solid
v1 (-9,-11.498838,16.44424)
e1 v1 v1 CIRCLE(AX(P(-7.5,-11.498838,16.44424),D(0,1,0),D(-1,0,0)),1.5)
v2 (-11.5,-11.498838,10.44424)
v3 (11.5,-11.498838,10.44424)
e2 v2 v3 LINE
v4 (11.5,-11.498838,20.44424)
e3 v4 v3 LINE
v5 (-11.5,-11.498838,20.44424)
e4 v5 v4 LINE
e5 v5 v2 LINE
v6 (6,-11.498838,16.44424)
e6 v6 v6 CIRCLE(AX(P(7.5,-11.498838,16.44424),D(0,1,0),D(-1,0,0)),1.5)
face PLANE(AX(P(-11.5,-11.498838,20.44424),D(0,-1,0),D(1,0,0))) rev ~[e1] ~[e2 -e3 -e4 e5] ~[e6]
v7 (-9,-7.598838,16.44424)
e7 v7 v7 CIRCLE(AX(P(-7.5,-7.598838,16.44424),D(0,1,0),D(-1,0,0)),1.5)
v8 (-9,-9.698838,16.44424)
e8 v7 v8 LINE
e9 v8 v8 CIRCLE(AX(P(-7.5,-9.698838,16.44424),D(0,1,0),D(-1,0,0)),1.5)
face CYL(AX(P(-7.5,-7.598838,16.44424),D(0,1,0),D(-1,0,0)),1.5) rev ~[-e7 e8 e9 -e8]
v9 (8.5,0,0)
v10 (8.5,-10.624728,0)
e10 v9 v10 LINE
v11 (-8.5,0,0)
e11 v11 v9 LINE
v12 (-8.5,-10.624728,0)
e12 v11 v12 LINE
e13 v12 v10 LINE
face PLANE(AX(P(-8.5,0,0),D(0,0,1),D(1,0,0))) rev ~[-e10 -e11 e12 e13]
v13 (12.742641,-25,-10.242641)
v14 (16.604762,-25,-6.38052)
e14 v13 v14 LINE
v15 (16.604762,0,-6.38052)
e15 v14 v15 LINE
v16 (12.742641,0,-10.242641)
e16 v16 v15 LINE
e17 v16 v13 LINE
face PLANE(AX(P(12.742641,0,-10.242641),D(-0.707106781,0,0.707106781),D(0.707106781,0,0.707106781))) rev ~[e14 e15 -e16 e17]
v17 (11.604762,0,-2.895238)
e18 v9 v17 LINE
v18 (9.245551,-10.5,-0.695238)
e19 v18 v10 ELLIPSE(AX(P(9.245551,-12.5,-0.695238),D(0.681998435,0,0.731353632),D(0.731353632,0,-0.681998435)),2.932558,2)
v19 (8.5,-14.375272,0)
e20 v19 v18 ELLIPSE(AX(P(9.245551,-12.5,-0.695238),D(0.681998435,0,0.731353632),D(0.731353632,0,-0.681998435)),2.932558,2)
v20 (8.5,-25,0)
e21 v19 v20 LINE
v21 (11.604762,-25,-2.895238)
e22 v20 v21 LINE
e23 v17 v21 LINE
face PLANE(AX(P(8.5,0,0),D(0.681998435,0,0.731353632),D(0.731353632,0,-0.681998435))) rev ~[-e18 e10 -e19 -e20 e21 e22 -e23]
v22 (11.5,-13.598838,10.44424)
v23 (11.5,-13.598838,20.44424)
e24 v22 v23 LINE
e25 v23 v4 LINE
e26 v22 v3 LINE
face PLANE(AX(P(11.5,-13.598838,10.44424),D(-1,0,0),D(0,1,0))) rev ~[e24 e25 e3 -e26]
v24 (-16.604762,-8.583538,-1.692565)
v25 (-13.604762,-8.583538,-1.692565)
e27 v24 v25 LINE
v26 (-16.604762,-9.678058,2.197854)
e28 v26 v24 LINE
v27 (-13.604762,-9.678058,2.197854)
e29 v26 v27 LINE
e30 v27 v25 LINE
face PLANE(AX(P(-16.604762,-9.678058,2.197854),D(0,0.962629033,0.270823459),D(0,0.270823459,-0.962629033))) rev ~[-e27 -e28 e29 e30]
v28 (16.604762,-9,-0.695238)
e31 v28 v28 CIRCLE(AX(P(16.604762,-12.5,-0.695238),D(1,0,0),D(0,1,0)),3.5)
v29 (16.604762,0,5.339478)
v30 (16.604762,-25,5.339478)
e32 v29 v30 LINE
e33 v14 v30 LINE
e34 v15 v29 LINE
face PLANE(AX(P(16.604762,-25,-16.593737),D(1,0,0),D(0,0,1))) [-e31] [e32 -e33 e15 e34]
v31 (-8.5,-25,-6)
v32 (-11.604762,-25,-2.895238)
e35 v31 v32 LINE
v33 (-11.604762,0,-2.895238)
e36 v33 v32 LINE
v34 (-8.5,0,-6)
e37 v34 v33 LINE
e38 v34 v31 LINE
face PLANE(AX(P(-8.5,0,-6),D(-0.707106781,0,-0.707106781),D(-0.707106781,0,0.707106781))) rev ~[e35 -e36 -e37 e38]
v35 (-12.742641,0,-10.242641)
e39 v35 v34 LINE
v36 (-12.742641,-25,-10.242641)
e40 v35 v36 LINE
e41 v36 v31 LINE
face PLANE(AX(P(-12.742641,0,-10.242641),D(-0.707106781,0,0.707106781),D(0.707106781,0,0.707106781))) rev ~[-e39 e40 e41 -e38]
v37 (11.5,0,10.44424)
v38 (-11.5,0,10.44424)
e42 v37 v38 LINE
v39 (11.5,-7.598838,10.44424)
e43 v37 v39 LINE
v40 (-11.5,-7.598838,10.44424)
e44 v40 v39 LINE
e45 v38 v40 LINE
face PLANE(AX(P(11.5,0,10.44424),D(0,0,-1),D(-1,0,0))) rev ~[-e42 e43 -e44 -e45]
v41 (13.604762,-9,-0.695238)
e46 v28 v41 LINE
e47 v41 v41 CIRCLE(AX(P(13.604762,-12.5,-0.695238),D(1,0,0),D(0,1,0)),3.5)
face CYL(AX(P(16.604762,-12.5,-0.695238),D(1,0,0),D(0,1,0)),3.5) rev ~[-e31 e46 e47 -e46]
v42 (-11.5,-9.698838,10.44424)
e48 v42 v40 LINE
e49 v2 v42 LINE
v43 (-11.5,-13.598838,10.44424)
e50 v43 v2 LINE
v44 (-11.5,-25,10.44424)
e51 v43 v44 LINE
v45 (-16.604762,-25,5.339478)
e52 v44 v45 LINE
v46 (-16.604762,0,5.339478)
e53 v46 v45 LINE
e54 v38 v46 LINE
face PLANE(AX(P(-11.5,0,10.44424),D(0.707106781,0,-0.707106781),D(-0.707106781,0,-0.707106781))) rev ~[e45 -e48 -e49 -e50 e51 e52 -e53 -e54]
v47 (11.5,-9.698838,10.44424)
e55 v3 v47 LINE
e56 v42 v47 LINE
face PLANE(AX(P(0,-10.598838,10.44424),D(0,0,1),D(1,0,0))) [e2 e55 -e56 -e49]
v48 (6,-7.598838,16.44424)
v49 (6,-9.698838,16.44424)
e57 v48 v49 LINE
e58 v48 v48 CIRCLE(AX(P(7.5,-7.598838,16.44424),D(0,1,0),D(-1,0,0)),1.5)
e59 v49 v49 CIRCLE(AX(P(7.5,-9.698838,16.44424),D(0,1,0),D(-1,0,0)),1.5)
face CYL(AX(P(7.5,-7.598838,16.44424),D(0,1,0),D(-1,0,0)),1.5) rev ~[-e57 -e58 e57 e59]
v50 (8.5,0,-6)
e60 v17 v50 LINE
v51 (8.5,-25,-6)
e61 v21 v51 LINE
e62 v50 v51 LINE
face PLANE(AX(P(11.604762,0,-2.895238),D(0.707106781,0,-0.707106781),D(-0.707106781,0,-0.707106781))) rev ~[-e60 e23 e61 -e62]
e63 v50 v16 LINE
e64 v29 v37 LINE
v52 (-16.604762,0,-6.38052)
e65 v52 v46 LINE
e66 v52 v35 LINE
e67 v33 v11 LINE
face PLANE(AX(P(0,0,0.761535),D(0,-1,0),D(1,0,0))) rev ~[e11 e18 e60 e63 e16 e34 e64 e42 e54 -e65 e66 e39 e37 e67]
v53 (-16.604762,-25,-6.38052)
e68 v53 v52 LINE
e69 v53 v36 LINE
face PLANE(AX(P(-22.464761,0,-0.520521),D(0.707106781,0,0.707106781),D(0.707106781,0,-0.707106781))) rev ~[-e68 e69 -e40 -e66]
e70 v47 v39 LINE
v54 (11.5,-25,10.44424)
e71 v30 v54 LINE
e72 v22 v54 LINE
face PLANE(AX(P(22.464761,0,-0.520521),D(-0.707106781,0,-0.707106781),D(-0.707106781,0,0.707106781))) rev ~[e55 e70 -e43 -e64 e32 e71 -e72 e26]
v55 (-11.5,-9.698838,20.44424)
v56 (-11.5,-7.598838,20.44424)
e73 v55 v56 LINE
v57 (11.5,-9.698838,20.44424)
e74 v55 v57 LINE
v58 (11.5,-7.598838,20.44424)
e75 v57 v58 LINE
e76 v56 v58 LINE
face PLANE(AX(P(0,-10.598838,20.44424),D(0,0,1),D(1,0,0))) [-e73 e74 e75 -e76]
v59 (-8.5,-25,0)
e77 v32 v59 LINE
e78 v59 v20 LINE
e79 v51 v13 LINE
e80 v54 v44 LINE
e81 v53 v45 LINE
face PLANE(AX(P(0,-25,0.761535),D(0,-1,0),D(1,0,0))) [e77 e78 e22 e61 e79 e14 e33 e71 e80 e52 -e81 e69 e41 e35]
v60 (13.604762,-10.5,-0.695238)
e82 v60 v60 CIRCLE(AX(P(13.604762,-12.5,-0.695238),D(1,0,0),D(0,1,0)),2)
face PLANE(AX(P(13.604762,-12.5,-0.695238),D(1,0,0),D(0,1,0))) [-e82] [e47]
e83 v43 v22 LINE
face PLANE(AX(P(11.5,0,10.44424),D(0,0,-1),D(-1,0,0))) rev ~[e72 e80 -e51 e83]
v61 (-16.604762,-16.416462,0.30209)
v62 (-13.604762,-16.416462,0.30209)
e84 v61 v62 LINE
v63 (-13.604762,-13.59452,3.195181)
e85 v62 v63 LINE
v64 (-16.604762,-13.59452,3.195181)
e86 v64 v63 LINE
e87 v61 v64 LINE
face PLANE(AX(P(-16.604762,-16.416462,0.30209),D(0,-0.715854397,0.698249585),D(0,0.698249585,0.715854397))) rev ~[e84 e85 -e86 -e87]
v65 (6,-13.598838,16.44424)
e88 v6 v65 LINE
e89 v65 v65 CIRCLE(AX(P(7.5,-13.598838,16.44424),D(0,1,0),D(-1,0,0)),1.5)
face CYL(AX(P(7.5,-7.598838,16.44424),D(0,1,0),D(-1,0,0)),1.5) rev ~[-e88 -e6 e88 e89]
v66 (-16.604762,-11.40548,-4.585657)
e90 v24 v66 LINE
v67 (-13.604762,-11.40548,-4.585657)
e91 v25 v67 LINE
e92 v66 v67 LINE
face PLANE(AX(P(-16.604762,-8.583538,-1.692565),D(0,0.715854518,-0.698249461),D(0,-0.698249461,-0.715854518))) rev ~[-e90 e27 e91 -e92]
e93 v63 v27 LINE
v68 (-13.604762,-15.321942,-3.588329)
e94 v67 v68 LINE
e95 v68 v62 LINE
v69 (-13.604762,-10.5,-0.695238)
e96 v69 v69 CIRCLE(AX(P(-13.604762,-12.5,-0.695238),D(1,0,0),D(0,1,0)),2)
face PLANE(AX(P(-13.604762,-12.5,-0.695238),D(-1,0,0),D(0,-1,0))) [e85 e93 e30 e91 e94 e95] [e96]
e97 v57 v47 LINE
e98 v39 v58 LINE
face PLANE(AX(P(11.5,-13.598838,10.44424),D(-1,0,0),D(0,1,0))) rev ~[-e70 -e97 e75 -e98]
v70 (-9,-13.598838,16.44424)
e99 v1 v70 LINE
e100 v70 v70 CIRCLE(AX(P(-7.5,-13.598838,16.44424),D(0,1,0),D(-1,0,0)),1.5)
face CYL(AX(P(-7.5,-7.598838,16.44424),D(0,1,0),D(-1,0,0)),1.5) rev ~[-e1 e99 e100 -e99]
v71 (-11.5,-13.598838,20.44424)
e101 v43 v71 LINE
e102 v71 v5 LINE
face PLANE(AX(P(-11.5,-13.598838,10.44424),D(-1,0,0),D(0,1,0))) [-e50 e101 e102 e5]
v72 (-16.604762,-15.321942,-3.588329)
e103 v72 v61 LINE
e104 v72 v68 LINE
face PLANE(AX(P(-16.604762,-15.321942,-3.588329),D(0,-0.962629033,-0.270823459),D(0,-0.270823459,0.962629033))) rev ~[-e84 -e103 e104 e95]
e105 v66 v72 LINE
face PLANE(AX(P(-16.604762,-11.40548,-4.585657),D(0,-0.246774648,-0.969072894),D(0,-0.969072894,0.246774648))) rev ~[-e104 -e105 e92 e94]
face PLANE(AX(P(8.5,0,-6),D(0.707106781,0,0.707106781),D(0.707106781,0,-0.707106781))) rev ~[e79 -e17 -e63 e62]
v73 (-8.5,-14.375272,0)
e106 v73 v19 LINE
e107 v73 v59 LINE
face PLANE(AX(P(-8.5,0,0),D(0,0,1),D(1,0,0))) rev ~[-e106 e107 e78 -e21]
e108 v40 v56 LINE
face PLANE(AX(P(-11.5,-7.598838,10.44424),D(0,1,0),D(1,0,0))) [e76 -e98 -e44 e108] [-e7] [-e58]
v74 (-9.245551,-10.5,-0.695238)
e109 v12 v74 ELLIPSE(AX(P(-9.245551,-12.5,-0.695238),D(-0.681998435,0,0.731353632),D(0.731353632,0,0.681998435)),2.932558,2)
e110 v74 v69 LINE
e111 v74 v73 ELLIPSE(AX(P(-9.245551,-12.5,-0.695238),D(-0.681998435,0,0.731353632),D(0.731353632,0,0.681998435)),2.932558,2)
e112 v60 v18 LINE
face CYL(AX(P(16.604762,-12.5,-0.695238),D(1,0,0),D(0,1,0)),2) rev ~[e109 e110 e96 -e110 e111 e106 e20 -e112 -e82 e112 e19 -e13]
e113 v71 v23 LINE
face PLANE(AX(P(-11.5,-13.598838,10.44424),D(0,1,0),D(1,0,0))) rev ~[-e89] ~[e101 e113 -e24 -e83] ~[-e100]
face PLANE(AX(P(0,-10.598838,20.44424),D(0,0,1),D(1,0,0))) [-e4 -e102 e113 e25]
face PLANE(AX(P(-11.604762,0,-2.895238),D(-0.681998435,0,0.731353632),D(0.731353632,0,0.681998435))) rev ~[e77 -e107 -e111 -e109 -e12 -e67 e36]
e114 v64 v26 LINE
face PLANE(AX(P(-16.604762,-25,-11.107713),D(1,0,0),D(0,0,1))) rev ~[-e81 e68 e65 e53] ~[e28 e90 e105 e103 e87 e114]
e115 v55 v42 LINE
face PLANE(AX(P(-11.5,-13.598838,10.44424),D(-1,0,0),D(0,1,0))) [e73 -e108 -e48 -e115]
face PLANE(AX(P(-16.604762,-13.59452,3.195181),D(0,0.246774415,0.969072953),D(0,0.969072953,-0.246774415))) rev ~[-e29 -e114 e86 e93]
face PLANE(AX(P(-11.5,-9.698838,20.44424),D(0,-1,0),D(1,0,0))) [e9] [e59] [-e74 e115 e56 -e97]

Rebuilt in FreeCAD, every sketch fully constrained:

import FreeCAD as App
import Part
import Sketcher

V = App.Vector
Q = App.Units.Quantity

doc = App.newDocument("Part")
body = doc.addObject("PartDesign::Body", "Body")

sketch1 = body.newObject("Sketcher::SketchObject", "Sketch")
sketch1.AttachmentSupport = (doc.getObject("XZ_Plane"), [""])
sketch1.MapMode = "FlatFace"
sketch1.addGeometry(Part.LineSegment(V(-11.604762, -2.895238, 0), V(-8.5, 0, 0)), False)
sketch1.addGeometry(Part.LineSegment(V(-8.5, 0, 0), V(8.5, 0, 0)), False)
sketch1.addGeometry(Part.LineSegment(V(8.5, 0, 0), V(11.604762, -2.895238, 0)), False)
sketch1.addGeometry(Part.LineSegment(V(11.604762, -2.895238, 0), V(8.5, -6, 0)), False)
sketch1.addGeometry(Part.LineSegment(V(8.5, -6, 0), V(12.742641, -10.242641, 0)), False)
sketch1.addGeometry(Part.LineSegment(V(12.742641, -10.242641, 0), V(22.464761, -0.520521, 0)), False)
sketch1.addGeometry(Part.LineSegment(V(22.464761, -0.520521, 0), V(11.5, 10.44424, 0)), False)
sketch1.addGeometry(Part.LineSegment(V(11.5, 10.44424, 0), V(-11.5, 10.44424, 0)), False)
sketch1.addGeometry(Part.LineSegment(V(-11.5, 10.44424, 0), V(-22.464761, -0.520521, 0)), False)
sketch1.addGeometry(Part.LineSegment(V(-22.464761, -0.520521, 0), V(-12.742641, -10.242641, 0)), False)
sketch1.addGeometry(Part.LineSegment(V(-12.742641, -10.242641, 0), V(-8.5, -6, 0)), False)
sketch1.addGeometry(Part.LineSegment(V(-8.5, -6, 0), V(-11.604762, -2.895238, 0)), False)
sketch1.addConstraint(Sketcher.Constraint("Coincident", 0, 2, 1, 1))
sketch1.addConstraint(Sketcher.Constraint("Coincident", 1, 2, 2, 1))
sketch1.addConstraint(Sketcher.Constraint("Coincident", 2, 2, 3, 1))
sketch1.addConstraint(Sketcher.Constraint("Coincident", 3, 2, 4, 1))
sketch1.addConstraint(Sketcher.Constraint("Coincident", 4, 2, 5, 1))
sketch1.addConstraint(Sketcher.Constraint("Coincident", 5, 2, 6, 1))
sketch1.addConstraint(Sketcher.Constraint("Coincident", 6, 2, 7, 1))
sketch1.addConstraint(Sketcher.Constraint("Coincident", 7, 2, 8, 1))
sketch1.addConstraint(Sketcher.Constraint("Coincident", 8, 2, 9, 1))
sketch1.addConstraint(Sketcher.Constraint("Coincident", 9, 2, 10, 1))
sketch1.addConstraint(Sketcher.Constraint("Coincident", 10, 2, 11, 1))
sketch1.addConstraint(Sketcher.Constraint("Coincident", 11, 2, 0, 1))
sketch1.addConstraint(Sketcher.Constraint("Horizontal", 1))
sketch1.addConstraint(Sketcher.Constraint("Horizontal", 7))
sketch1.addConstraint(Sketcher.Constraint("Symmetric", 0, 2, 1, 2, -1, 1))
sketch1.addConstraint(Sketcher.Constraint("Symmetric", 5, 2, 8, 2, -2))
sketch1.addConstraint(Sketcher.Constraint("Symmetric", 4, 2, 9, 2, -2))
sketch1.addConstraint(Sketcher.Constraint("Symmetric", 3, 2, 10, 2, -2))
sketch1.addConstraint(Sketcher.Constraint("Symmetric", 2, 2, 11, 2, -2))
sketch1.addConstraint(Sketcher.Constraint("Perpendicular", 3, 4))
sketch1.addConstraint(Sketcher.Constraint("Perpendicular", 4, 5))
sketch1.addConstraint(Sketcher.Constraint("Perpendicular", 5, 6))
sketch1.addConstraint(Sketcher.Constraint("Perpendicular", 6, 8))
sketch1.addConstraint(Sketcher.Constraint("Perpendicular", 8, 9))
sketch1.addConstraint(Sketcher.Constraint("Vertical", 1, 2, 3, 2))
sketch1.addConstraint(Sketcher.Constraint("DistanceX", 1, 1, 1, 2, Q("17 mm")))
sketch1.addConstraint(Sketcher.Constraint("DistanceX", 7, 2, 7, 1, Q("23 mm")))
sketch1.addConstraint(Sketcher.Constraint("Angle", 0, Q("43.000006 deg")))
sketch1.addConstraint(Sketcher.Constraint("Distance", 4, Q("6 mm")))
sketch1.addConstraint(Sketcher.Constraint("DistanceY", 3, 2, -1, 1, Q("6 mm")))
sketch1.addConstraint(Sketcher.Constraint("DistanceX", 2, 2, 5, 2, Q("10.859999 mm")))
pad1 = body.newObject("PartDesign::Pad", "Pad")
pad1.Profile = sketch1
pad1.Length = 25

sketch2 = body.newObject("Sketcher::SketchObject", "Sketch001")
sketch2.AttachmentSupport = (doc.getObject("XZ_Plane"), [""])
sketch2.MapMode = "FlatFace"
sketch2.AttachmentOffset = App.Placement(V(0, 0, 25), App.Rotation())
sketch2.addGeometry(Part.LineSegment(V(-24.200794, 9.992377, 0), V(-24.200794, -11.107713, 0)), False)
sketch2.addGeometry(Part.LineSegment(V(-24.200794, -11.107713, 0), V(-16.604762, -11.107713, 0)), False)
sketch2.addGeometry(Part.LineSegment(V(-16.604762, -11.107713, 0), V(-16.604762, 9.992377, 0)), False)
sketch2.addGeometry(Part.LineSegment(V(-16.604762, 9.992377, 0), V(-24.200794, 9.992377, 0)), False)
sketch2.addGeometry(Part.LineSegment(V(16.604762, 13.509059, 0), V(16.604762, -16.593737, 0)), False)
sketch2.addGeometry(Part.LineSegment(V(16.604762, -16.593737, 0), V(26.873476, -16.593737, 0)), False)
sketch2.addGeometry(Part.LineSegment(V(26.873476, -16.593737, 0), V(26.873476, 13.509059, 0)), False)
sketch2.addGeometry(Part.LineSegment(V(26.873476, 13.509059, 0), V(16.604762, 13.509059, 0)), False)
sketch2.addConstraint(Sketcher.Constraint("Coincident", 0, 2, 1, 1))
sketch2.addConstraint(Sketcher.Constraint("Coincident", 1, 2, 2, 1))
sketch2.addConstraint(Sketcher.Constraint("Coincident", 2, 2, 3, 1))
sketch2.addConstraint(Sketcher.Constraint("Coincident", 3, 2, 0, 1))
sketch2.addConstraint(Sketcher.Constraint("Coincident", 4, 2, 5, 1))
sketch2.addConstraint(Sketcher.Constraint("Coincident", 5, 2, 6, 1))
sketch2.addConstraint(Sketcher.Constraint("Coincident", 6, 2, 7, 1))
sketch2.addConstraint(Sketcher.Constraint("Coincident", 7, 2, 4, 1))
sketch2.addConstraint(Sketcher.Constraint("Vertical", 0))
sketch2.addConstraint(Sketcher.Constraint("Horizontal", 1))
sketch2.addConstraint(Sketcher.Constraint("Vertical", 2))
sketch2.addConstraint(Sketcher.Constraint("Horizontal", 3))
sketch2.addConstraint(Sketcher.Constraint("Vertical", 4))
sketch2.addConstraint(Sketcher.Constraint("Horizontal", 5))
sketch2.addConstraint(Sketcher.Constraint("Vertical", 6))
sketch2.addConstraint(Sketcher.Constraint("Horizontal", 7))
sketch2.addConstraint(Sketcher.Constraint("DistanceX", 1, 1, 1, 2, Q("7.596032 mm")))
sketch2.addConstraint(Sketcher.Constraint("DistanceY", 0, 2, 0, 1, Q("21.10009 mm")))
sketch2.addConstraint(Sketcher.Constraint("DistanceX", 5, 1, 5, 2, Q("10.268714 mm")))
sketch2.addConstraint(Sketcher.Constraint("DistanceY", 4, 2, 4, 1, Q("30.102797 mm")))
sketch2.addConstraint(Sketcher.Constraint("DistanceY", -1, 1, 6, 2, Q("13.509059 mm")))
sketch2.addConstraint(Sketcher.Constraint("DistanceX", 1, 2, 5, 2, Q("43.478238 mm")))
sketch2.addConstraint(Sketcher.Constraint("DistanceX", 0, 2, -1, 1, Q("24.200794 mm")))
sketch2.addConstraint(Sketcher.Constraint("DistanceY", 0, 2, -1, 1, Q("11.107713 mm")))
pocket1 = body.newObject("PartDesign::Pocket", "Pocket")
pocket1.Profile = sketch2
pocket1.Length = 25

sketch3 = body.newObject("Sketcher::SketchObject", "Sketch002")
sketch3.AttachmentSupport = (doc.getObject("YZ_Plane"), [""])
sketch3.MapMode = "FlatFace"
sketch3.AttachmentOffset = App.Placement(V(0, 0, 16.604762), App.Rotation())
sketch3.addGeometry(Part.Circle(V(-12.5, -0.695238, 0), V(0, 0, 1), 2), False)
sketch3.addConstraint(Sketcher.Constraint("Diameter", 0, Q("4 mm")))
sketch3.addConstraint(Sketcher.Constraint("DistanceX", 0, 3, -1, 1, Q("12.5 mm")))
sketch3.addConstraint(Sketcher.Constraint("DistanceY", 0, 3, -1, 1, Q("0.695238 mm")))
pocket2 = body.newObject("PartDesign::Pocket", "Pocket001")
pocket2.Profile = sketch3
pocket2.Length = 35

sketch4 = body.newObject("Sketcher::SketchObject", "Sketch003")
sketch4.AttachmentSupport = (doc.getObject("YZ_Plane"), [""])
sketch4.MapMode = "FlatFace"
sketch4.AttachmentOffset = App.Placement(V(0, 0, 16.604762), App.Rotation())
sketch4.addGeometry(Part.Circle(V(-12.5, -0.695238, 0), V(0, 0, 1), 3.5), False)
sketch4.addConstraint(Sketcher.Constraint("Diameter", 0, Q("7 mm")))
sketch4.addConstraint(Sketcher.Constraint("DistanceX", 0, 3, -1, 1, Q("12.5 mm")))
sketch4.addConstraint(Sketcher.Constraint("DistanceY", 0, 3, -1, 1, Q("0.695238 mm")))
pocket3 = body.newObject("PartDesign::Pocket", "Pocket002")
pocket3.Profile = sketch4
pocket3.Length = 3

sketch5 = body.newObject("Sketcher::SketchObject", "Sketch004")
sketch5.AttachmentSupport = (doc.getObject("YZ_Plane"), [""])
sketch5.MapMode = "FlatFace"
sketch5.AttachmentOffset = App.Placement(V(0, 0, -16.604762), App.Rotation())
sketch5.addGeometry(Part.LineSegment(V(-15.321942, -3.588329, 0), V(-16.416462, 0.30209, 0)), False)
sketch5.addGeometry(Part.LineSegment(V(-16.416462, 0.30209, 0), V(-13.59452, 3.195181, 0)), False)
sketch5.addGeometry(Part.LineSegment(V(-13.59452, 3.195181, 0), V(-9.678058, 2.197854, 0)), False)
sketch5.addGeometry(Part.LineSegment(V(-9.678058, 2.197854, 0), V(-8.583538, -1.692565, 0)), False)
sketch5.addGeometry(Part.LineSegment(V(-8.583538, -1.692565, 0), V(-11.40548, -4.585657, 0)), False)
sketch5.addGeometry(Part.LineSegment(V(-11.40548, -4.585657, 0), V(-15.321942, -3.588329, 0)), False)
sketch5.addConstraint(Sketcher.Constraint("Coincident", 0, 2, 1, 1))
sketch5.addConstraint(Sketcher.Constraint("Coincident", 1, 2, 2, 1))
sketch5.addConstraint(Sketcher.Constraint("Coincident", 2, 2, 3, 1))
sketch5.addConstraint(Sketcher.Constraint("Coincident", 3, 2, 4, 1))
sketch5.addConstraint(Sketcher.Constraint("Coincident", 4, 2, 5, 1))
sketch5.addConstraint(Sketcher.Constraint("Coincident", 5, 2, 0, 1))
sketch5.addConstraint(Sketcher.Constraint("Parallel", 0, 3))
sketch5.addConstraint(Sketcher.Constraint("Parallel", 1, 4))
sketch5.addConstraint(Sketcher.Constraint("Parallel", 2, 5))
sketch5.addConstraint(Sketcher.Constraint("Equal", 0, 1))
sketch5.addConstraint(Sketcher.Constraint("Equal", 1, 2))
sketch5.addConstraint(Sketcher.Constraint("Equal", 2, 3))
sketch5.addConstraint(Sketcher.Constraint("Distance", 0, Q("4.041452 mm")))
sketch5.addConstraint(Sketcher.Constraint("DistanceX", 0, 2, -1, 1, Q("16.416462 mm")))
sketch5.addConstraint(Sketcher.Constraint("DistanceY", -1, 1, 0, 2, Q("0.30209 mm")))
sketch5.addConstraint(Sketcher.Constraint("DistanceX", 1, 2, -1, 1, Q("13.59452 mm")))
sketch5.addConstraint(Sketcher.Constraint("DistanceX", 3, 2, -1, 1, Q("8.583538 mm")))
sketch5.addConstraint(Sketcher.Constraint("DistanceY", 5, 2, -1, 1, Q("3.588329 mm")))
pocket4 = body.newObject("PartDesign::Pocket", "Pocket003")
pocket4.Profile = sketch5
pocket4.Length = 3
pocket4.Reversed = True

sketch6 = body.newObject("Sketcher::SketchObject", "Sketch005")
sketch6.AttachmentSupport = (doc.getObject("XY_Plane"), [""])
sketch6.MapMode = "FlatFace"
sketch6.AttachmentOffset = App.Placement(V(0, 0, 10.44424), App.Rotation())
sketch6.addGeometry(Part.LineSegment(V(-11.5, -7.598838, 0), V(-11.5, -13.598838, 0)), False)
sketch6.addGeometry(Part.LineSegment(V(-11.5, -13.598838, 0), V(11.5, -13.598838, 0)), False)
sketch6.addGeometry(Part.LineSegment(V(11.5, -13.598838, 0), V(11.5, -7.598838, 0)), False)
sketch6.addGeometry(Part.LineSegment(V(11.5, -7.598838, 0), V(-11.5, -7.598838, 0)), False)
sketch6.addConstraint(Sketcher.Constraint("Coincident", 0, 2, 1, 1))
sketch6.addConstraint(Sketcher.Constraint("Coincident", 1, 2, 2, 1))
sketch6.addConstraint(Sketcher.Constraint("Coincident", 2, 2, 3, 1))
sketch6.addConstraint(Sketcher.Constraint("Coincident", 3, 2, 0, 1))
sketch6.addConstraint(Sketcher.Constraint("Vertical", 0))
sketch6.addConstraint(Sketcher.Constraint("Horizontal", 1))
sketch6.addConstraint(Sketcher.Constraint("Vertical", 2))
sketch6.addConstraint(Sketcher.Constraint("Horizontal", 3))
sketch6.addConstraint(Sketcher.Constraint("DistanceX", 1, 1, 1, 2, Q("23 mm")))
sketch6.addConstraint(Sketcher.Constraint("DistanceY", 0, 2, 0, 1, Q("6 mm")))
sketch6.addConstraint(Sketcher.Constraint("DistanceX", 0, 2, -1, 1, Q("11.5 mm")))
sketch6.addConstraint(Sketcher.Constraint("DistanceY", 0, 2, -1, 1, Q("13.598838 mm")))
pad2 = body.newObject("PartDesign::Pad", "Pad001")
pad2.Profile = sketch6
pad2.Length = 10

sketch7 = body.newObject("Sketcher::SketchObject", "Sketch006")
sketch7.AttachmentSupport = (doc.getObject("XY_Plane"), [""])
sketch7.MapMode = "FlatFace"
sketch7.AttachmentOffset = App.Placement(V(0, 0, 20.44424), App.Rotation())
sketch7.addGeometry(Part.LineSegment(V(-11.5, -9.698838, 0), V(-11.5, -11.498838, 0)), False)
sketch7.addGeometry(Part.LineSegment(V(-11.5, -11.498838, 0), V(11.5, -11.498838, 0)), False)
sketch7.addGeometry(Part.LineSegment(V(11.5, -11.498838, 0), V(11.5, -9.698838, 0)), False)
sketch7.addGeometry(Part.LineSegment(V(11.5, -9.698838, 0), V(-11.5, -9.698838, 0)), False)
sketch7.addConstraint(Sketcher.Constraint("Coincident", 0, 2, 1, 1))
sketch7.addConstraint(Sketcher.Constraint("Coincident", 1, 2, 2, 1))
sketch7.addConstraint(Sketcher.Constraint("Coincident", 2, 2, 3, 1))
sketch7.addConstraint(Sketcher.Constraint("Coincident", 3, 2, 0, 1))
sketch7.addConstraint(Sketcher.Constraint("Vertical", 0))
sketch7.addConstraint(Sketcher.Constraint("Horizontal", 1))
sketch7.addConstraint(Sketcher.Constraint("Vertical", 2))
sketch7.addConstraint(Sketcher.Constraint("Horizontal", 3))
sketch7.addConstraint(Sketcher.Constraint("DistanceX", 1, 1, 1, 2, Q("23 mm")))
sketch7.addConstraint(Sketcher.Constraint("DistanceY", 0, 2, 0, 1, Q("1.8 mm")))
sketch7.addConstraint(Sketcher.Constraint("DistanceX", 0, 2, -1, 1, Q("11.5 mm")))
sketch7.addConstraint(Sketcher.Constraint("DistanceY", 0, 2, -1, 1, Q("11.498838 mm")))
pocket5 = body.newObject("PartDesign::Pocket", "Pocket004")
pocket5.Profile = sketch7
pocket5.Length = 10

sketch8 = body.newObject("Sketcher::SketchObject", "Sketch007")
sketch8.AttachmentSupport = (doc.getObject("XZ_Plane"), [""])
sketch8.MapMode = "FlatFace"
sketch8.AttachmentOffset = App.Placement(V(0, 0, 7.598838), App.Rotation())
sketch8.addGeometry(Part.Circle(V(7.5, 16.44424, 0), V(0, 0, 1), 1.5), False)
sketch8.addGeometry(Part.Circle(V(-7.5, 16.44424, 0), V(0, 0, 1), 1.5), False)
sketch8.addConstraint(Sketcher.Constraint("Equal", 0, 1))
sketch8.addConstraint(Sketcher.Constraint("Symmetric", 0, 3, 1, 3, -2))
sketch8.addConstraint(Sketcher.Constraint("Diameter", 0, Q("3 mm")))
sketch8.addConstraint(Sketcher.Constraint("DistanceX", 1, 3, 0, 3, Q("15 mm")))
sketch8.addConstraint(Sketcher.Constraint("DistanceY", -1, 1, 0, 3, Q("16.44424 mm")))
pocket6 = body.newObject("PartDesign::Pocket", "Pocket005")
pocket6.Profile = sketch8
pocket6.Length = 25
pocket6.Reversed = True

doc.recompute()
